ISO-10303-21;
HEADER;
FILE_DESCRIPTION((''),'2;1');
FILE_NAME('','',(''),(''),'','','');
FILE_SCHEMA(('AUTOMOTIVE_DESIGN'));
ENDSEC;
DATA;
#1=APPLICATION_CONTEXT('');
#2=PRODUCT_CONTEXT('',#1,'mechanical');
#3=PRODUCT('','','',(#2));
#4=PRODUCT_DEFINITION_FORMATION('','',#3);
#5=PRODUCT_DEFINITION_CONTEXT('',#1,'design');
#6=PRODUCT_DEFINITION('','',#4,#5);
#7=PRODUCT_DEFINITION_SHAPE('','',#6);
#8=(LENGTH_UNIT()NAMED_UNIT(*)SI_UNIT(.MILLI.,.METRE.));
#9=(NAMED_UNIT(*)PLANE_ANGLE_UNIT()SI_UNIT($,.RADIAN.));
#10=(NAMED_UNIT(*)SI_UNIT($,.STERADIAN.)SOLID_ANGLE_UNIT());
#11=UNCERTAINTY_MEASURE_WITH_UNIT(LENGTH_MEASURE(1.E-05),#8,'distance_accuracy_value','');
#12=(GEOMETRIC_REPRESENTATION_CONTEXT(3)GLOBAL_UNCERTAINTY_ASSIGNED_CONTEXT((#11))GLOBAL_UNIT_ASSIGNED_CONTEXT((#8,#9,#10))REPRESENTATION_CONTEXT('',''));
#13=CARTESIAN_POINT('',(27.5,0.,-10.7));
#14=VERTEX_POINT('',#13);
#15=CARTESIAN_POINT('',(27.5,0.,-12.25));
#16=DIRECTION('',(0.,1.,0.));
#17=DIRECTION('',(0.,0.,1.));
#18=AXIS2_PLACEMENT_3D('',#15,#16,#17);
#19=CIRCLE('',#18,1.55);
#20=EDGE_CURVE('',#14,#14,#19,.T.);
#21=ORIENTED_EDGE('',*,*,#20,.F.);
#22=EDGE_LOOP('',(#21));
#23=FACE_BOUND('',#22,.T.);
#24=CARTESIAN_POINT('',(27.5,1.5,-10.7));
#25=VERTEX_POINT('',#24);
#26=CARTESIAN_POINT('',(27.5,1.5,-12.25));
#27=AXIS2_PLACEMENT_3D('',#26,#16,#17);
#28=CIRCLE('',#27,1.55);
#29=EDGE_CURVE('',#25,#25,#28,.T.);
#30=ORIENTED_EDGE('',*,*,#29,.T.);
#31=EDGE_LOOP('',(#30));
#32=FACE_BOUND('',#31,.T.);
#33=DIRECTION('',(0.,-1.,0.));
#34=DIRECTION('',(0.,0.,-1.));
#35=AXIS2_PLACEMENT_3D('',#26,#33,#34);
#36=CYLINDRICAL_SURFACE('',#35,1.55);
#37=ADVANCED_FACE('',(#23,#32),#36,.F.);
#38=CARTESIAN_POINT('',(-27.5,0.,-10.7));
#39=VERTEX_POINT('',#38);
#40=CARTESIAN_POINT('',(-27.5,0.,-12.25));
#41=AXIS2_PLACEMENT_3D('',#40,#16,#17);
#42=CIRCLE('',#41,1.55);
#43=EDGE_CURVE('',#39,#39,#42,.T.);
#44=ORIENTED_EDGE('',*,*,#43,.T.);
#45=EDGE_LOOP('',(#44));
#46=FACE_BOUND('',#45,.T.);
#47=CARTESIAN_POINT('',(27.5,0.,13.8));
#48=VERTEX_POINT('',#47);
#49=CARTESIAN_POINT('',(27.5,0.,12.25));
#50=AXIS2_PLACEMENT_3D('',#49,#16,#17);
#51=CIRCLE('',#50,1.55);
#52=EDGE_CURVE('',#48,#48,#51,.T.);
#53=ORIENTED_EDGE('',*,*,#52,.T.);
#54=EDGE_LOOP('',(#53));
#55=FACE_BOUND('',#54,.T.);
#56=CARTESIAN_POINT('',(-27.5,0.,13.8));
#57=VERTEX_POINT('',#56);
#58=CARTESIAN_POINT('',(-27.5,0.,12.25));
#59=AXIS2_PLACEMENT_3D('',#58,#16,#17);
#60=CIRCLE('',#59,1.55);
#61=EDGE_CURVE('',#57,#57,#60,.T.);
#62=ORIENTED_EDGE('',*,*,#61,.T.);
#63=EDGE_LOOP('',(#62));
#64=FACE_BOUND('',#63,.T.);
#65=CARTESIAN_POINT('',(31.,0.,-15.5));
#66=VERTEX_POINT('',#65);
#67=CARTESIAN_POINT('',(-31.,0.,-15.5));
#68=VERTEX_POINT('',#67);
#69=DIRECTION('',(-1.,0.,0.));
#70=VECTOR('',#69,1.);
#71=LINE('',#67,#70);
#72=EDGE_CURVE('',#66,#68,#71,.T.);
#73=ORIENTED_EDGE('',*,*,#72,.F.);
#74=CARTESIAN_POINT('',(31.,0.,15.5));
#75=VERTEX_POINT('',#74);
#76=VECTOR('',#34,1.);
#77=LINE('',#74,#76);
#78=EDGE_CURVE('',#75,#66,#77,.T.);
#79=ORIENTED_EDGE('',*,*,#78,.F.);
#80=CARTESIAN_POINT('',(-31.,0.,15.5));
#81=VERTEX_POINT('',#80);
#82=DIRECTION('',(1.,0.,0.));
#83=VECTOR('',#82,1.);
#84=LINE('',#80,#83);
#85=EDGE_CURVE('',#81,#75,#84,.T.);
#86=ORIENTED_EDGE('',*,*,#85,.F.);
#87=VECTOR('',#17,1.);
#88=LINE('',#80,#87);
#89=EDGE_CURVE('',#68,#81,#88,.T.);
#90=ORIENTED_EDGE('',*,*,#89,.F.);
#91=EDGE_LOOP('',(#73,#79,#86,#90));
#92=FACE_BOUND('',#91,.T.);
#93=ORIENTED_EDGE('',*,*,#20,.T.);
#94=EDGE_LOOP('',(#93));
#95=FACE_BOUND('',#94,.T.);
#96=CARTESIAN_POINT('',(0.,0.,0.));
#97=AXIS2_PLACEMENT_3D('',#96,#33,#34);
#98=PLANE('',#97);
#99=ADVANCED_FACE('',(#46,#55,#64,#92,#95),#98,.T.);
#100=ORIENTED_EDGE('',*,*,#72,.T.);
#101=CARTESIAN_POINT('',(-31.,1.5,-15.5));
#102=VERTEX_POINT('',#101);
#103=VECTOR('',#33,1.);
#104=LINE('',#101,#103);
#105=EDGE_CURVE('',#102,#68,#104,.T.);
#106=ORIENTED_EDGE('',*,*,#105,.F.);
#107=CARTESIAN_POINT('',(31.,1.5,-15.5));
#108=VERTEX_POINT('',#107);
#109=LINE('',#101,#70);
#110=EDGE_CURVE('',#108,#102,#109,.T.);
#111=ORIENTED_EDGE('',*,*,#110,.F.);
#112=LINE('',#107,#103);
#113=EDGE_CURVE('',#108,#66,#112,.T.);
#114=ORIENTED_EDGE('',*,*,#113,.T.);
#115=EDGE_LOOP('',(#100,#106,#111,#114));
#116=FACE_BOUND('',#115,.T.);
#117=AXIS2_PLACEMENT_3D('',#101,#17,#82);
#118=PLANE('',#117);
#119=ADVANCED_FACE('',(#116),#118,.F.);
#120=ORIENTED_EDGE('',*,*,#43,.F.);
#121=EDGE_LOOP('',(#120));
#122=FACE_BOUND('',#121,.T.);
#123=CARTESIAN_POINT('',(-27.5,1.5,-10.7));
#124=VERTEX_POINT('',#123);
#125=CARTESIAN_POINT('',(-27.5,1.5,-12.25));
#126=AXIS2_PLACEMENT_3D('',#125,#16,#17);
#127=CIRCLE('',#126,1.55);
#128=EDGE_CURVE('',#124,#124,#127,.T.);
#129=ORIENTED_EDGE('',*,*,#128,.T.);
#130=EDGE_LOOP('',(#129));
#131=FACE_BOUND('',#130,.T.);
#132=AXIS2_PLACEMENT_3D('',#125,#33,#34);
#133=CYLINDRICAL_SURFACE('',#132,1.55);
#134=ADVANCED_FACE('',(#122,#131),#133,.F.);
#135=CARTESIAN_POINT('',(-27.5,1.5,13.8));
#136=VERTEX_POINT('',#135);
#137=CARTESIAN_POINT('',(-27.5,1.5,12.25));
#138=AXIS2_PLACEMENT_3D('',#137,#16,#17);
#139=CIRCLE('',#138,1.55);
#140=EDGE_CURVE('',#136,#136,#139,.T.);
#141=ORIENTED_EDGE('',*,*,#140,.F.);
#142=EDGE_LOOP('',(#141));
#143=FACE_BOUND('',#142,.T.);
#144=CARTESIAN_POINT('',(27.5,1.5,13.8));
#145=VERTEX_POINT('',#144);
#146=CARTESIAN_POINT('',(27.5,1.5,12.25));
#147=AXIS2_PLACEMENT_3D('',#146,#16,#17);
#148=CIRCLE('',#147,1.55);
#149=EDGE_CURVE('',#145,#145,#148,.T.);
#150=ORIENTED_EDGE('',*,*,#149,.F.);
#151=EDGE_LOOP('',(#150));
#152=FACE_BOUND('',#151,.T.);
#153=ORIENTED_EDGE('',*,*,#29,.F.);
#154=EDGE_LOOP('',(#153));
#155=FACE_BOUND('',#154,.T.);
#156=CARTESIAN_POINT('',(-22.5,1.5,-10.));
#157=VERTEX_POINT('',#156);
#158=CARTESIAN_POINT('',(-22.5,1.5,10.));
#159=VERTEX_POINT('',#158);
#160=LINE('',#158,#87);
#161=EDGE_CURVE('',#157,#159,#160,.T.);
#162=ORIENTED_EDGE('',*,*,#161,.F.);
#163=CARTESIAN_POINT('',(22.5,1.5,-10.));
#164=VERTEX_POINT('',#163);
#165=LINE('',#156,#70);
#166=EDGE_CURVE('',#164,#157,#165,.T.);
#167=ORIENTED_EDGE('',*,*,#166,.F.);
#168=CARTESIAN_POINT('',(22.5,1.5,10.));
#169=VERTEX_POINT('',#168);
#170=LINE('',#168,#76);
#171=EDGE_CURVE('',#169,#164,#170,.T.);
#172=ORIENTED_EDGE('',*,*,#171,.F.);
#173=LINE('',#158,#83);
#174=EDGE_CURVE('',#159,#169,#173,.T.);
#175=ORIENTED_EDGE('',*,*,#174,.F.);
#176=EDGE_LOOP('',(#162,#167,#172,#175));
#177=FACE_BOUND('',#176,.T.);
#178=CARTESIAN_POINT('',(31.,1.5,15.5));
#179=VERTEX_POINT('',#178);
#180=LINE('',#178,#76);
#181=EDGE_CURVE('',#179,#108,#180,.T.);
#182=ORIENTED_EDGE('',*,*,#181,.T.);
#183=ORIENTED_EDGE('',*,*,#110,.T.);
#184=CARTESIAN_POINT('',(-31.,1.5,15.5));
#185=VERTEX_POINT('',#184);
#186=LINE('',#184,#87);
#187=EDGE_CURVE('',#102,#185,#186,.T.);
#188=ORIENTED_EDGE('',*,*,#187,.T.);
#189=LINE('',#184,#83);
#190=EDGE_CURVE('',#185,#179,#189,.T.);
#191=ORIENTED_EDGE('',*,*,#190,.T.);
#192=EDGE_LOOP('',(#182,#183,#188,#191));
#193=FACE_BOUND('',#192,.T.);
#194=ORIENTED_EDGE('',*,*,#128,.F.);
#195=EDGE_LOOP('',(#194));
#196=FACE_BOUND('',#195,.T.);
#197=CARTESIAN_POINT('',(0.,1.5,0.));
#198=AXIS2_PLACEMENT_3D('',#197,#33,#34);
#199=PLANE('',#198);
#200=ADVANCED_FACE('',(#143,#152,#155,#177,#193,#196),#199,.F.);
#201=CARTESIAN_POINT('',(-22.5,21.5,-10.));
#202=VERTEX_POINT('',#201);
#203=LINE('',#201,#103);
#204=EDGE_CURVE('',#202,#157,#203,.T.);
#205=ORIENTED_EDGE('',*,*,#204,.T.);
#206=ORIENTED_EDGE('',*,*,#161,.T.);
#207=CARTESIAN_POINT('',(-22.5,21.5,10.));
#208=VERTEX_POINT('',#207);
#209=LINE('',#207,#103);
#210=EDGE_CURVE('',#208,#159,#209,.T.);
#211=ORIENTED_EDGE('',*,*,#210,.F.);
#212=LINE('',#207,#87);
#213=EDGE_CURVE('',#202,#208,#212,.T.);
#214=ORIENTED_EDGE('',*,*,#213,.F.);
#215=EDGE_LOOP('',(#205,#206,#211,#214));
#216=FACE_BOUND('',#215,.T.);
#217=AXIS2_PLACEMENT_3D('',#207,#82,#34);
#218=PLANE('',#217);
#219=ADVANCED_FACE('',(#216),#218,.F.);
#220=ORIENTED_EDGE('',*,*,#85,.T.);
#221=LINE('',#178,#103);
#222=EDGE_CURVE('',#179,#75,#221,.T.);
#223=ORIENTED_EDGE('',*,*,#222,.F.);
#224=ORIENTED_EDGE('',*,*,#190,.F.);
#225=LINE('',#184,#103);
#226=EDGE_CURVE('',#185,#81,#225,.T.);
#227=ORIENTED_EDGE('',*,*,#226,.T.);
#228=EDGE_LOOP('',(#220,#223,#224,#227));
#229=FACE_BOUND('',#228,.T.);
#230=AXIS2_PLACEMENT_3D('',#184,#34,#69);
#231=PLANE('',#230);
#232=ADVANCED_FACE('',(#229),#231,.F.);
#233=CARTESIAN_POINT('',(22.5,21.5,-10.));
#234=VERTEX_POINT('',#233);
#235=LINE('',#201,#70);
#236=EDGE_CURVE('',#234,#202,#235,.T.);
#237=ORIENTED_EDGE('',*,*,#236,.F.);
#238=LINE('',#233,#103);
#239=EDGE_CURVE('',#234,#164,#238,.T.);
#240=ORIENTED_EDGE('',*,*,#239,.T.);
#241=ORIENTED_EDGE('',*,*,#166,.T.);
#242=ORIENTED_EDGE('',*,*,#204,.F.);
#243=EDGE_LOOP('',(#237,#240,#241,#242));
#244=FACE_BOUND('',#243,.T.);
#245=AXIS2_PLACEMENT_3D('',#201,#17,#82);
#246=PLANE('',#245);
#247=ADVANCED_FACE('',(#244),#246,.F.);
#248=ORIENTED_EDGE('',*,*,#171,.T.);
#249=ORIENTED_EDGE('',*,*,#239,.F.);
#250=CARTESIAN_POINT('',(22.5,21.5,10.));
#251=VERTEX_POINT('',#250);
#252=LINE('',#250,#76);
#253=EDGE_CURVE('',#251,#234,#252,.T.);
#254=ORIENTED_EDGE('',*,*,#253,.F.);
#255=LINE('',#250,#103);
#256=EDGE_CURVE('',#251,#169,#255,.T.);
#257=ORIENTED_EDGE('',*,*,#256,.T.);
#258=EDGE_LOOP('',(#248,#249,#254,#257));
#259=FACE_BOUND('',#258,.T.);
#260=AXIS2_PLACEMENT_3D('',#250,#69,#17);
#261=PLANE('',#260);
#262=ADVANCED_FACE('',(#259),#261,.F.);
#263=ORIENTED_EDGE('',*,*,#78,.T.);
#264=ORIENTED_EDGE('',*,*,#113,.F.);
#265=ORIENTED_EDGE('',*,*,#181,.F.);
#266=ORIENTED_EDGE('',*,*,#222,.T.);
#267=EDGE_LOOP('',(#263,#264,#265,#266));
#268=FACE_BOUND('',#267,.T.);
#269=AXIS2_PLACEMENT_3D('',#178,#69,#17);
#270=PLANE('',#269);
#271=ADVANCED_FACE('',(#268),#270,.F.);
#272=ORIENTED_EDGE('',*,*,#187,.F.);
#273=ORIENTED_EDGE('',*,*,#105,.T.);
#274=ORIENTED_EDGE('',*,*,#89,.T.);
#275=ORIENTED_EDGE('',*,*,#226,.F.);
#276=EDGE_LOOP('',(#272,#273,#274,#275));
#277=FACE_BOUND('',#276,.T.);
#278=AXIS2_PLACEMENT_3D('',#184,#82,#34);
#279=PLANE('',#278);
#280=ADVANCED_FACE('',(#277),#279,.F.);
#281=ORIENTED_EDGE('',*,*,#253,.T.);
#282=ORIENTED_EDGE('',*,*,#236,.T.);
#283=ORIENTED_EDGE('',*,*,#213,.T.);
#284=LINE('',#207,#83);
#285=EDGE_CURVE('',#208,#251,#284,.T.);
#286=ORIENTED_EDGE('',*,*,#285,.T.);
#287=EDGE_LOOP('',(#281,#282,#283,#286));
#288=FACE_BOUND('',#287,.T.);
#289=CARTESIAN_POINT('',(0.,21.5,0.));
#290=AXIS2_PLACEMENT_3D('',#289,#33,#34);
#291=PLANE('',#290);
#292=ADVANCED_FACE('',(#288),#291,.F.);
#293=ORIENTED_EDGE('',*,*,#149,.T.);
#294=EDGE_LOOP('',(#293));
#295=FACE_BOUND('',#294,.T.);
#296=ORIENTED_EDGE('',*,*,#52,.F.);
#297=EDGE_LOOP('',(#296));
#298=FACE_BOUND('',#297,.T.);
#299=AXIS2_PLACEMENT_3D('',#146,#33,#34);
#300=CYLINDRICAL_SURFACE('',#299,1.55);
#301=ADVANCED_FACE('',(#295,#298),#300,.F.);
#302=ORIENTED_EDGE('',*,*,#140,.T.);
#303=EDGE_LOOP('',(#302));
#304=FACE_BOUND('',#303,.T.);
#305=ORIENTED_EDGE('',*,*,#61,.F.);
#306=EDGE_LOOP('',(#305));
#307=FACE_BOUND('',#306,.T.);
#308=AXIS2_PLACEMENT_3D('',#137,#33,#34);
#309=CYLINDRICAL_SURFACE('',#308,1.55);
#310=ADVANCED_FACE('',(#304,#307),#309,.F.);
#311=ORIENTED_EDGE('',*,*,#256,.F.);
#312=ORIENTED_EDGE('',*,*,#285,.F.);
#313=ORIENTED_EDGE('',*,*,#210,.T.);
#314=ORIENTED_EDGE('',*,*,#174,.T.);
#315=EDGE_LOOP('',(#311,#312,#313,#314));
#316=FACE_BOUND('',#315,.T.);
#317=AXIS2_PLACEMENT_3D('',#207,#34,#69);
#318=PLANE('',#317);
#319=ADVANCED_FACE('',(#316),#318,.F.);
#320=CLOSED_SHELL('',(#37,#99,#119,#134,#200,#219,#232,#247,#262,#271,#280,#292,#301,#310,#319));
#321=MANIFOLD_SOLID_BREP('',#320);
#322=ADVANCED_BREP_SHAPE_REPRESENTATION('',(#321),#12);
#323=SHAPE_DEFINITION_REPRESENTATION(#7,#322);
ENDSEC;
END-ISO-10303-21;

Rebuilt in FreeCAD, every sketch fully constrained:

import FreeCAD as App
import Part
import Sketcher
Q = App.Units.Quantity


def add_polygon(sketch, points):
    """Adds a closed chain of lines whose ends are joined by coincident constraints."""
    first, n = sketch.GeometryCount, len(points)
    for a, b in zip(points, points[1:] + points[:1]):
        sketch.addGeometry(Part.LineSegment(App.Vector(*a, 0), App.Vector(*b, 0)), False)
    for i in range(n):
        sketch.addConstraint(Sketcher.Constraint("Coincident", first + i, 2, first + (i + 1) % n, 1))

doc = App.newDocument("Part")
body = doc.addObject("PartDesign::Body", "Body")

# Sketch on XZ plane
sketch1 = body.newObject("Sketcher::SketchObject", "Sketch")
sketch1.AttachmentSupport = (doc.getObject("XZ_Plane"), [""])
sketch1.MapMode = "FlatFace"
add_polygon(sketch1, [(-31, -15.5), (-31, 15.5), (31, 15.5), (31, -15.5)])  # lines 0-3
sketch1.addGeometry(Part.Circle(App.Vector(-27.5, 12.2, 0), App.Vector(0, 0, 1), 1.6), False)  # 4
sketch1.addGeometry(Part.Circle(App.Vector(27.5, 12.2, 0), App.Vector(0, 0, 1), 1.6), False)  # 5
sketch1.addGeometry(Part.Circle(App.Vector(-27.5, -12.2, 0), App.Vector(0, 0, 1), 1.6), False)  # 6
sketch1.addGeometry(Part.Circle(App.Vector(27.5, -12.2, 0), App.Vector(0, 0, 1), 1.6), False)  # 7
sketch1.addConstraint([
    Sketcher.Constraint("Vertical", 0),
    Sketcher.Constraint("Horizontal", 1),
    Sketcher.Constraint("Vertical", 2),
    Sketcher.Constraint("Horizontal", 3),
    Sketcher.Constraint("Equal", 4, 5),
    Sketcher.Constraint("Equal", 5, 6),
    Sketcher.Constraint("Equal", 6, 7),
    Sketcher.Constraint("Symmetric", 5, 3, 6, 3, -1, 1),
    Sketcher.Constraint("Symmetric", 4, 3, 7, 3, -1, 1),
    Sketcher.Constraint("Symmetric", 0, 2, 2, 2, -1, 1),
    Sketcher.Constraint("Symmetric", 4, 3, 5, 3, -2),
    Sketcher.Constraint("Diameter", 4, Q("3.1 mm")),
    Sketcher.Constraint("DistanceX", 1, 1, 1, 2, Q("62 mm")),
    Sketcher.Constraint("DistanceY", 0, 1, 0, 2, Q("31 mm")),
    Sketcher.Constraint("DistanceX", 4, 3, 5, 3, Q("55 mm")),
    Sketcher.Constraint("DistanceY", 6, 3, 4, 3, Q("24.5 mm")),
])
pad1 = body.newObject("PartDesign::Pad", "Pad")
pad1.Profile = sketch1
pad1.Length = 1.5
pad1.Reversed = True

# Sketch on XZ plane
sketch2 = body.newObject("Sketcher::SketchObject", "Sketch001")
sketch2.AttachmentSupport = (doc.getObject("XZ_Plane"), [""])
sketch2.MapMode = "FlatFace"
sketch2.AttachmentOffset = App.Placement(App.Vector(0, 0, -1.5), App.Rotation())
add_polygon(sketch2, [(-22, -10), (-22, 10), (22, 10), (22, -10)])  # lines 0-3
sketch2.addConstraint([
    Sketcher.Constraint("Vertical", 0),
    Sketcher.Constraint("Horizontal", 1),
    Sketcher.Constraint("Vertical", 2),
    Sketcher.Constraint("Horizontal", 3),
    Sketcher.Constraint("Symmetric", 0, 2, 2, 2, -1, 1),
    Sketcher.Constraint("DistanceX", 1, 1, 1, 2, Q("45 mm")),
    Sketcher.Constraint("DistanceY", 0, 1, 0, 2, Q("20 mm")),
])
pad2 = body.newObject("PartDesign::Pad", "Pad001")
pad2.Profile = sketch2
pad2.Length = 20
pad2.Reversed = True

doc.recompute()
